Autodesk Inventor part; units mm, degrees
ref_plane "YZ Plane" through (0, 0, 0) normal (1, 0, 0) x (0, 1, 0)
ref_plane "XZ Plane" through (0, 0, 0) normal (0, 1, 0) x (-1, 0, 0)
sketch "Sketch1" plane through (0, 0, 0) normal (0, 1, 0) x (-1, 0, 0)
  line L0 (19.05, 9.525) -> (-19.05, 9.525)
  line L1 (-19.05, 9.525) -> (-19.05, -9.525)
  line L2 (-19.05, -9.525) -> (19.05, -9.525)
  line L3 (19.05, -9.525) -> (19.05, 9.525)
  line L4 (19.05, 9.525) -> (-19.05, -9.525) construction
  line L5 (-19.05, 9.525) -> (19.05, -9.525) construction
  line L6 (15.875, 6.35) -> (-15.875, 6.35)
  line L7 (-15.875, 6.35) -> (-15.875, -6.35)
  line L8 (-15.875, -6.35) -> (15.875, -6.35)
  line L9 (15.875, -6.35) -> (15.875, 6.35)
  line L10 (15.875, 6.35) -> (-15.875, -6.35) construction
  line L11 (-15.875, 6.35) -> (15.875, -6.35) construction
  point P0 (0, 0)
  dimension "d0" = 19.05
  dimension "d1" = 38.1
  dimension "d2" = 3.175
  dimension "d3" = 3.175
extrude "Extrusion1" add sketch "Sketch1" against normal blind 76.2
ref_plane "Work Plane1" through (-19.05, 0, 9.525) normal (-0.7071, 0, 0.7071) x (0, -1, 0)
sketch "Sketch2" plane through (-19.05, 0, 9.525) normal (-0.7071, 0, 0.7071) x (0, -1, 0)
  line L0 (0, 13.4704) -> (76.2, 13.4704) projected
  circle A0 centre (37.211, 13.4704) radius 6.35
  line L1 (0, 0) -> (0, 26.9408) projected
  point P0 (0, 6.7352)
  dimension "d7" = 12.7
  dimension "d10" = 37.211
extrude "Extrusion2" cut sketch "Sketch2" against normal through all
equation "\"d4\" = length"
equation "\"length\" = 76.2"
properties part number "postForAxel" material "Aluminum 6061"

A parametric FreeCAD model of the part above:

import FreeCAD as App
import Part
import Sketcher
Q = App.Units.Quantity


def add_polygon(sketch, points):
    """Adds a closed chain of lines whose ends are joined by coincident constraints."""
    first, n = sketch.GeometryCount, len(points)
    for a, b in zip(points, points[1:] + points[:1]):
        sketch.addGeometry(Part.LineSegment(App.Vector(*a, 0), App.Vector(*b, 0)), False)
    for i in range(n):
        sketch.addConstraint(Sketcher.Constraint("Coincident", first + i, 2, first + (i + 1) % n, 1))

doc = App.newDocument("Part")
body = doc.addObject("PartDesign::Body", "Body")

# Sketch on XZ plane
sketch1 = body.newObject("Sketcher::SketchObject", "Sketch")
sketch1.AttachmentSupport = (doc.getObject("XZ_Plane"), [""])
sketch1.MapMode = "FlatFace"
add_polygon(sketch1, [(-19, -10), (-19, 10), (19, 10), (19, -10)])  # lines 0-3
add_polygon(sketch1, [(16, 6), (-16, 6), (-16, -6), (16, -6)])  # lines 4-7
sketch1.addConstraint(Sketcher.Constraint("Vertical", 0))
sketch1.addConstraint(Sketcher.Constraint("Horizontal", 1))
sketch1.addConstraint(Sketcher.Constraint("Vertical", 2))
sketch1.addConstraint(Sketcher.Constraint("Horizontal", 3))
sketch1.addConstraint(Sketcher.Constraint("Horizontal", 4))
sketch1.addConstraint(Sketcher.Constraint("Vertical", 5))
sketch1.addConstraint(Sketcher.Constraint("Horizontal", 6))
sketch1.addConstraint(Sketcher.Constraint("Vertical", 7))
sketch1.addConstraint(Sketcher.Constraint("Symmetric", 0, 2, 2, 2, -1, 1))
sketch1.addConstraint(Sketcher.Constraint("Symmetric", 4, 2, 6, 2, -1, 1))
sketch1.addConstraint(Sketcher.Constraint("DistanceX", 1, 1, 1, 2, Q("1.5 in")))
sketch1.addConstraint(Sketcher.Constraint("DistanceY", 0, 1, 0, 2, Q("0.75 in")))
sketch1.addConstraint(Sketcher.Constraint("DistanceY", 5, 2, 5, 1, Q("0.5 in")))
sketch1.addConstraint(Sketcher.Constraint("DistanceX", 0, 2, 4, 2, Q("0.125 in")))
pad1 = body.newObject("PartDesign::Pad", "Pad")
pad1.Profile = sketch1
pad1.Length = Q("3 in")

# Sketch on an angled plane
sketch2 = body.newObject("Sketcher::SketchObject", "Sketch001")
sketch2.Placement = App.Placement(App.Vector(-19.05, 0, 9.525), App.Rotation(App.Vector(0, -1, 0), App.Vector(0.707106781, 0, 0.707106781), App.Vector(-0.707106781, 0, 0.707106781), "ZXY"))
sketch2.addGeometry(Part.Circle(App.Vector(37, 13, 0), App.Vector(0, 0, 1), 6), False)
sketch2.addConstraint(Sketcher.Constraint("Diameter", 0, Q("0.5 in")))
sketch2.addConstraint(Sketcher.Constraint("DistanceX", -1, 1, 0, 3, Q("1.465 in")))
sketch2.addConstraint(Sketcher.Constraint("DistanceY", -1, 1, 0, 3, Q("13.4704 mm")))
pocket1 = body.newObject("PartDesign::Pocket", "Pocket")
pocket1.Profile = sketch2
pocket1.Type = "ThroughAll"

doc.recompute()
